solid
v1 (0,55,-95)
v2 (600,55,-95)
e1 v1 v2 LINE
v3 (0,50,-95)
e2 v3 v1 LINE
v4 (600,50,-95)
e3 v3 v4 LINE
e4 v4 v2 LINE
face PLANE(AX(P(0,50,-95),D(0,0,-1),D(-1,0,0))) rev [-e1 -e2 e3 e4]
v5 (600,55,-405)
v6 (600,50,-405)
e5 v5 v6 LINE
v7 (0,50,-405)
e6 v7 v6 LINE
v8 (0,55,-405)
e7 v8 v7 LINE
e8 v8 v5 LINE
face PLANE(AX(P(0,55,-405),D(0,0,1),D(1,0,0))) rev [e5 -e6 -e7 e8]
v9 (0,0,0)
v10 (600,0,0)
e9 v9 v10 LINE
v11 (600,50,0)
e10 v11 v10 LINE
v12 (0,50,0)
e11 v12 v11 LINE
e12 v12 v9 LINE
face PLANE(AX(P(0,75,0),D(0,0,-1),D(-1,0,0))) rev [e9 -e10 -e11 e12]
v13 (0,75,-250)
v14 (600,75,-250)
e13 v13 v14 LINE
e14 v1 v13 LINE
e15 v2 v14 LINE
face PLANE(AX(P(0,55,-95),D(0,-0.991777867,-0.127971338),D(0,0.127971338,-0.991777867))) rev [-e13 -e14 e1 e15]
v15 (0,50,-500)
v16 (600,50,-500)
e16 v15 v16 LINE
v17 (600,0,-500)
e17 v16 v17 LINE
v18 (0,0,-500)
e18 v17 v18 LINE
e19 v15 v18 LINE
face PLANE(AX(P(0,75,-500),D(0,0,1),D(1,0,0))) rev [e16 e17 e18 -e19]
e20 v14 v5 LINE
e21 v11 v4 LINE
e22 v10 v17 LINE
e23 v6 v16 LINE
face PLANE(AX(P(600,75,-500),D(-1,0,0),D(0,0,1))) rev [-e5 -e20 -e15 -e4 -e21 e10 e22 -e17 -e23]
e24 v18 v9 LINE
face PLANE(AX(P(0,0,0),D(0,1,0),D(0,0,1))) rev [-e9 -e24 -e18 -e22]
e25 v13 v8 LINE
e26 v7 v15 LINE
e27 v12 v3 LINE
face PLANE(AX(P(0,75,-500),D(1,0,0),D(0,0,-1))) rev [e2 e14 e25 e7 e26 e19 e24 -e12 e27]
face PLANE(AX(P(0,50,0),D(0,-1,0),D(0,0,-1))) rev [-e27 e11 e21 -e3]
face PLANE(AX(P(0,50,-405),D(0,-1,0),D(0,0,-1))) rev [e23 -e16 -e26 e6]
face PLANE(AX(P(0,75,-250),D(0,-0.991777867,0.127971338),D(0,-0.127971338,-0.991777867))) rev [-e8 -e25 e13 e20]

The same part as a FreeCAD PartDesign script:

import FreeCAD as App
import Part
import Sketcher

doc = App.newDocument("Part")
params = doc.addObject("Spreadsheet::Sheet", "Params")
for row, (alias, value) in enumerate([
    ("sketch1_width", "600 mm"),
    ("sketch1_height", "500 mm"),
    ("pad1_length", "75 mm"),
    ("sketch2_width", "5 mm"),
    ("sketch2_width2", "25 mm"),
    ("sketch2_height", "95 mm"),
    ("sketch2_height2", "250 mm"),
    ("sketch3_width", "25 mm"),
    ("sketch3_width2", "5 mm"),
    ("sketch3_height", "95 mm"),
    ("sketch3_height2", "250 mm"),
], start=1):
    params.set(f"A{row}", alias)
    params.set(f"B{row}", "=" + value)
    params.setAlias(f"B{row}", alias)

body = doc.addObject("PartDesign::Body", "Body")

sketch1 = body.newObject("Sketcher::SketchObject", "Sketch")
sketch1.AttachmentSupport = (doc.getObject("XZ_Plane"), [""])
sketch1.MapMode = "FlatFace"
sketch1.addGeometry([
    Part.LineSegment(App.Vector(0, -500, 0), App.Vector(0, 0, 0)),
    Part.LineSegment(App.Vector(0, 0, 0), App.Vector(600, 0, 0)),
    Part.LineSegment(App.Vector(600, 0, 0), App.Vector(600, -500, 0)),
    Part.LineSegment(App.Vector(600, -500, 0), App.Vector(0, -500, 0)),
], False)
sketch1.addConstraint([
    Sketcher.Constraint("Coincident", 0, 2, 1, 1),
    Sketcher.Constraint("Coincident", 1, 2, 2, 1),
    Sketcher.Constraint("Coincident", 2, 2, 3, 1),
    Sketcher.Constraint("Coincident", 3, 2, 0, 1),
    Sketcher.Constraint("Vertical", 0),
    Sketcher.Constraint("Horizontal", 1),
    Sketcher.Constraint("Vertical", 2),
    Sketcher.Constraint("Horizontal", 3),
    Sketcher.Constraint("Coincident", 0, 2, -1, 1),
    Sketcher.Constraint("DistanceX", 1, 1, 1, 2, 600.0),
    Sketcher.Constraint("DistanceY", 0, 1, 0, 2, 500.0),
])
sketch1.setExpression("Constraints[9]", "Params.sketch1_width")
sketch1.setExpression("Constraints[10]", "Params.sketch1_height")
pad1 = body.newObject("PartDesign::Pad", "Pad")
pad1.Profile = sketch1
pad1.setExpression("Length", "Params.pad1_length")
pad1.Reversed = True

sketch2 = body.newObject("Sketcher::SketchObject", "Sketch001")
sketch2.AttachmentSupport = (doc.getObject("YZ_Plane"), [""])
sketch2.MapMode = "FlatFace"
sketch2.AttachmentOffset = App.Placement(App.Vector(0, 0, 600), App.Rotation())
sketch2.addGeometry([
    Part.LineSegment(App.Vector(55, -405, 0), App.Vector(50, -405, 0)),
    Part.LineSegment(App.Vector(50, -405, 0), App.Vector(50, -500, 0)),
    Part.LineSegment(App.Vector(50, -500, 0), App.Vector(75, -500, 0)),
    Part.LineSegment(App.Vector(75, -500, 0), App.Vector(75, -250, 0)),
    Part.LineSegment(App.Vector(75, -250, 0), App.Vector(55, -405, 0)),
], False)
sketch2.addConstraint([
    Sketcher.Constraint("Coincident", 0, 2, 1, 1),
    Sketcher.Constraint("Coincident", 1, 2, 2, 1),
    Sketcher.Constraint("Coincident", 2, 2, 3, 1),
    Sketcher.Constraint("Coincident", 3, 2, 4, 1),
    Sketcher.Constraint("Coincident", 4, 2, 0, 1),
    Sketcher.Constraint("Horizontal", 0),
    Sketcher.Constraint("Vertical", 1),
    Sketcher.Constraint("Horizontal", 2),
    Sketcher.Constraint("Vertical", 3),
    Sketcher.Constraint("DistanceX", 0, 2, 0, 1, 5.0),
    Sketcher.Constraint("DistanceX", 2, 1, 2, 2, 25.0),
    Sketcher.Constraint("DistanceY", 1, 2, 1, 1, 95.0),
    Sketcher.Constraint("DistanceY", 3, 1, 3, 2, 250.0),
    Sketcher.Constraint("DistanceX", -1, 1, 0, 2, 50.0),
    Sketcher.Constraint("DistanceY", 0, 2, -1, 1, 405.0),
])
sketch2.setExpression("Constraints[9]", "Params.sketch2_width")
sketch2.setExpression("Constraints[10]", "Params.sketch2_width2")
sketch2.setExpression("Constraints[11]", "Params.sketch2_height")
sketch2.setExpression("Constraints[12]", "Params.sketch2_height2")
pocket1 = body.newObject("PartDesign::Pocket", "Pocket")
pocket1.Profile = sketch2
pocket1.Type = "ThroughAll"

sketch3 = body.newObject("Sketcher::SketchObject", "Sketch002")
sketch3.AttachmentSupport = (doc.getObject("YZ_Plane"), [""])
sketch3.MapMode = "FlatFace"
sketch3.AttachmentOffset = App.Placement(App.Vector(0, 0, 600), App.Rotation())
sketch3.addGeometry([
    Part.LineSegment(App.Vector(75, 0, 0), App.Vector(50, 0, 0)),
    Part.LineSegment(App.Vector(50, 0, 0), App.Vector(50, -95, 0)),
    Part.LineSegment(App.Vector(50, -95, 0), App.Vector(55, -95, 0)),
    Part.LineSegment(App.Vector(55, -95, 0), App.Vector(75, -250, 0)),
    Part.LineSegment(App.Vector(75, -250, 0), App.Vector(75, 0, 0)),
], False)
sketch3.addConstraint([
    Sketcher.Constraint("Coincident", 0, 2, 1, 1),
    Sketcher.Constraint("Coincident", 1, 2, 2, 1),
    Sketcher.Constraint("Coincident", 2, 2, 3, 1),
    Sketcher.Constraint("Coincident", 3, 2, 4, 1),
    Sketcher.Constraint("Coincident", 4, 2, 0, 1),
    Sketcher.Constraint("Horizontal", 0),
    Sketcher.Constraint("Vertical", 1),
    Sketcher.Constraint("Horizontal", 2),
    Sketcher.Constraint("Vertical", 4),
    Sketcher.Constraint("PointOnObject", 0, 2, -1),
    Sketcher.Constraint("DistanceX", 0, 2, 0, 1, 25.0),
    Sketcher.Constraint("DistanceX", 2, 1, 2, 2, 5.0),
    Sketcher.Constraint("DistanceY", 1, 2, 1, 1, 95.0),
    Sketcher.Constraint("DistanceY", 4, 1, 4, 2, 250.0),
    Sketcher.Constraint("DistanceX", -1, 1, 0, 2, 50.0),
])
sketch3.setExpression("Constraints[10]", "Params.sketch3_width")
sketch3.setExpression("Constraints[11]", "Params.sketch3_width2")
sketch3.setExpression("Constraints[12]", "Params.sketch3_height")
sketch3.setExpression("Constraints[13]", "Params.sketch3_height2")
pocket2 = body.newObject("PartDesign::Pocket", "Pocket001")
pocket2.Profile = sketch3
pocket2.Type = "ThroughAll"

doc.recompute()
